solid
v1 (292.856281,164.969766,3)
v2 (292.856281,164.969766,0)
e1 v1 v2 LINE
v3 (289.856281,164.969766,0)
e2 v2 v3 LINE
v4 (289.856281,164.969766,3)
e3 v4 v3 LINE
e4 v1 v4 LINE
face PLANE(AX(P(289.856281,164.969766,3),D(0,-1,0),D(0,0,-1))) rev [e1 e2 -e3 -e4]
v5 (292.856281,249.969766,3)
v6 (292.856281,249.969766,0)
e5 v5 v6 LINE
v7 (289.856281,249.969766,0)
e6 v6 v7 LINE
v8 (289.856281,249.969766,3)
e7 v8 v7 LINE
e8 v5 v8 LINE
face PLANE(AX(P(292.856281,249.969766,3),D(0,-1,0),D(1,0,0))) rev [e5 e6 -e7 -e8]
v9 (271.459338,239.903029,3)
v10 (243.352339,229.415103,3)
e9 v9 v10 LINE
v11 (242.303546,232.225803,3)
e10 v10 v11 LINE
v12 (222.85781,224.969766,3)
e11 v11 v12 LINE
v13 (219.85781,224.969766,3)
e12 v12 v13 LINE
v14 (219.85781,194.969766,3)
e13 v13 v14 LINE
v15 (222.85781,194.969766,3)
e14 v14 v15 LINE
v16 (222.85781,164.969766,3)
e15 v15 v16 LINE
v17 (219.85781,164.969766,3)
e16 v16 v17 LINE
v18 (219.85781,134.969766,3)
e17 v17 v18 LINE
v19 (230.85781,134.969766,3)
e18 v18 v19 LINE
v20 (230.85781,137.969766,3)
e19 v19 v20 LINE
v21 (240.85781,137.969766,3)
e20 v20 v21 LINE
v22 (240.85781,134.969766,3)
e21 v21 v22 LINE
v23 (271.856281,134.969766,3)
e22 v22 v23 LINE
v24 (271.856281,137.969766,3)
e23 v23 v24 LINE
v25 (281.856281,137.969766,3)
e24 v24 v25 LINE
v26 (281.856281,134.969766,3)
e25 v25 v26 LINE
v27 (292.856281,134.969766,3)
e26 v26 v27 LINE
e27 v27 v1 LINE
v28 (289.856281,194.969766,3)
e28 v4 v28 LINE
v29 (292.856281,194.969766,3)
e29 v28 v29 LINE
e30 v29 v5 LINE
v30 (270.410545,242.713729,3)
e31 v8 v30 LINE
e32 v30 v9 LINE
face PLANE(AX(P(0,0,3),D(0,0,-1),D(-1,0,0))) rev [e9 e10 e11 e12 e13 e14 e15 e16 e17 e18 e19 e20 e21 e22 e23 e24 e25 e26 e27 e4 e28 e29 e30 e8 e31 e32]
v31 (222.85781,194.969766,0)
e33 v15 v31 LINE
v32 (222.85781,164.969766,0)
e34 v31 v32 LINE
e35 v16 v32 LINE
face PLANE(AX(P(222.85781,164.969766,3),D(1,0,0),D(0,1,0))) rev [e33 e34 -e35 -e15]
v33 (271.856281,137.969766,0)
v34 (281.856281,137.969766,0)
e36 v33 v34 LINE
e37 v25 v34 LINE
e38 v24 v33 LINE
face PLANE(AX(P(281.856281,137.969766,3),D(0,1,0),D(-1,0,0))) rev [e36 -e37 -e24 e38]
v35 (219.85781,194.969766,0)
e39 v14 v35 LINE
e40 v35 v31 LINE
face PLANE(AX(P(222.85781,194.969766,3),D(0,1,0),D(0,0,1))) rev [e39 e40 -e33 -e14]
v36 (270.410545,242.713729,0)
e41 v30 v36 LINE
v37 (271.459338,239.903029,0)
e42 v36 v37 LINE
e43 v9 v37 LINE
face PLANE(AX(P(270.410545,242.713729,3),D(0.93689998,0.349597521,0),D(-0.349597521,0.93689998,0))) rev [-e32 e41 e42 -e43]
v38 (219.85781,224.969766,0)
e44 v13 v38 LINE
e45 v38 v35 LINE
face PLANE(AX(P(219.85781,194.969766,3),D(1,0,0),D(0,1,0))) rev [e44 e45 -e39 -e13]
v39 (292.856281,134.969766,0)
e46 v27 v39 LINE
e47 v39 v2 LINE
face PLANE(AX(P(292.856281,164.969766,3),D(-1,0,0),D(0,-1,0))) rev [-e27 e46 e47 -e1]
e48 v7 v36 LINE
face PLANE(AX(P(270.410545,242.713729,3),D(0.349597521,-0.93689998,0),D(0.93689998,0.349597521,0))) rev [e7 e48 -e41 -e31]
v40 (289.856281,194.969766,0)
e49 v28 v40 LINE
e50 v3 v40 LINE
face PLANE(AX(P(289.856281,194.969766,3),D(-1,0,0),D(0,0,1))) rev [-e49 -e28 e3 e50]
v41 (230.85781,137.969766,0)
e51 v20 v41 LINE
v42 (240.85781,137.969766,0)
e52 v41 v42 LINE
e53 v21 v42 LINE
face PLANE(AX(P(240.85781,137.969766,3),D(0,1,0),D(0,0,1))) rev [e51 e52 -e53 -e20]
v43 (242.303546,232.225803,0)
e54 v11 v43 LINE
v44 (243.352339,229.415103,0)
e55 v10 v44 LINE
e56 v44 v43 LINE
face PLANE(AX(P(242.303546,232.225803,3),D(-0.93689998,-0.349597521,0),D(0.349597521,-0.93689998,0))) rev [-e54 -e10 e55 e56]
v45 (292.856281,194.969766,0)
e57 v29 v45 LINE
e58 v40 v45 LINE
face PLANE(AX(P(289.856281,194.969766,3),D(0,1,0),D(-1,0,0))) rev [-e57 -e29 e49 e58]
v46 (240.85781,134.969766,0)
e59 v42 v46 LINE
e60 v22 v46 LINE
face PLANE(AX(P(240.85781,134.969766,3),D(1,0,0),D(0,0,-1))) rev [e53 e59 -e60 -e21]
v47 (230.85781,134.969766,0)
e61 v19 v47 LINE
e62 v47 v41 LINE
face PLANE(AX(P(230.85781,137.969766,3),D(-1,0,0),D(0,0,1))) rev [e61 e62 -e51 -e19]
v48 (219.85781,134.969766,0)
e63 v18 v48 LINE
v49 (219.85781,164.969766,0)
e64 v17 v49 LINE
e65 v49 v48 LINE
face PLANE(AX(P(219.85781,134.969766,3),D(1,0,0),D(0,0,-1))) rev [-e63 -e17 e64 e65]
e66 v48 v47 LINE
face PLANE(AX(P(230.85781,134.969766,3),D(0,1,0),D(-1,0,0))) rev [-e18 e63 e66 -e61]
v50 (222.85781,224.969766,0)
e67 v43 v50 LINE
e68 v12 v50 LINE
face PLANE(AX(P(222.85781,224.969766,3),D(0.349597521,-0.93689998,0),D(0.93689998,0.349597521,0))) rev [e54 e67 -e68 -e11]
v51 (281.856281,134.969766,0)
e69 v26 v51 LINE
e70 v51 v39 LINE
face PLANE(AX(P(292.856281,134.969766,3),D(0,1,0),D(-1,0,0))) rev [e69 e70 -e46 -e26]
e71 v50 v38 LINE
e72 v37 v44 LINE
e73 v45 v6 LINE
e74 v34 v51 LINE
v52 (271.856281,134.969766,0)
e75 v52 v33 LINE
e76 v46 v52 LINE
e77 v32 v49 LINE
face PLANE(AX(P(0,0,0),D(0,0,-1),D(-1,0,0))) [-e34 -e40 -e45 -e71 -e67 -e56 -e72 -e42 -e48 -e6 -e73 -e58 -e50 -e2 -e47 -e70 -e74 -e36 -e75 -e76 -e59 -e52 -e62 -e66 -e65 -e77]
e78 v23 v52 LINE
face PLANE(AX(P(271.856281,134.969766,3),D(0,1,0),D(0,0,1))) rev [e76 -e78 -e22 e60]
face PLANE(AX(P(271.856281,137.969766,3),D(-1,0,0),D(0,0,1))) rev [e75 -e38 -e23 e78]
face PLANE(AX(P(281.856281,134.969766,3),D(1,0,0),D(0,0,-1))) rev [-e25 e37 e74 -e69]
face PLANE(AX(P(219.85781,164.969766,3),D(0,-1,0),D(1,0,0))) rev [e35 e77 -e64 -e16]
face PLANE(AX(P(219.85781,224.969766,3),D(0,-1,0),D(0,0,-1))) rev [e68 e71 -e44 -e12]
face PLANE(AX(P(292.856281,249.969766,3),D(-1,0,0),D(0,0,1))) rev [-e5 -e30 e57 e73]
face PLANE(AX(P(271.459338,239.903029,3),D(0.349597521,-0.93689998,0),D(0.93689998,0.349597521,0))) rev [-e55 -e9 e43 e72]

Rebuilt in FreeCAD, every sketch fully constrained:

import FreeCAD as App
import Part
import Sketcher
from FreeCAD import Vector

doc = App.newDocument("Part")
body = doc.addObject("PartDesign::Body", "Body")

sketch1 = body.newObject("Sketcher::SketchObject", "Sketch")
sketch1.AttachmentSupport = (doc.getObject("XY_Plane"), [""])
sketch1.MapMode = "FlatFace"
sketch1.addGeometry(Part.LineSegment(Vector(292.9, 195, 0), Vector(292.9, 250, 0)), False)
sketch1.addGeometry(Part.LineSegment(Vector(292.9, 250, 0), Vector(289.9, 250, 0)), False)
sketch1.addGeometry(Part.LineSegment(Vector(289.9, 250, 0), Vector(270.4, 242.7, 0)), False)
sketch1.addGeometry(Part.LineSegment(Vector(270.4, 242.7, 0), Vector(271.5, 239.9, 0)), False)
sketch1.addGeometry(Part.LineSegment(Vector(271.5, 239.9, 0), Vector(243.4, 229.4, 0)), False)
sketch1.addGeometry(Part.LineSegment(Vector(243.4, 229.4, 0), Vector(242.3, 232.2, 0)), False)
sketch1.addGeometry(Part.LineSegment(Vector(242.3, 232.2, 0), Vector(222.9, 225, 0)), False)
sketch1.addGeometry(Part.LineSegment(Vector(222.9, 225, 0), Vector(219.9, 225, 0)), False)
sketch1.addGeometry(Part.LineSegment(Vector(219.9, 225, 0), Vector(219.9, 195, 0)), False)
sketch1.addGeometry(Part.LineSegment(Vector(219.9, 195, 0), Vector(222.9, 195, 0)), False)
sketch1.addGeometry(Part.LineSegment(Vector(222.9, 195, 0), Vector(222.9, 165, 0)), False)
sketch1.addGeometry(Part.LineSegment(Vector(222.9, 165, 0), Vector(219.9, 165, 0)), False)
sketch1.addGeometry(Part.LineSegment(Vector(219.9, 165, 0), Vector(219.9, 135, 0)), False)
sketch1.addGeometry(Part.LineSegment(Vector(219.9, 135, 0), Vector(230.9, 135, 0)), False)
sketch1.addGeometry(Part.LineSegment(Vector(230.9, 135, 0), Vector(230.9, 138, 0)), False)
sketch1.addGeometry(Part.LineSegment(Vector(230.9, 138, 0), Vector(240.9, 138, 0)), False)
sketch1.addGeometry(Part.LineSegment(Vector(240.9, 138, 0), Vector(240.9, 135, 0)), False)
sketch1.addGeometry(Part.LineSegment(Vector(240.9, 135, 0), Vector(271.9, 135, 0)), False)
sketch1.addGeometry(Part.LineSegment(Vector(271.9, 135, 0), Vector(271.9, 138, 0)), False)
sketch1.addGeometry(Part.LineSegment(Vector(271.9, 138, 0), Vector(281.9, 138, 0)), False)
sketch1.addGeometry(Part.LineSegment(Vector(281.9, 138, 0), Vector(281.9, 135, 0)), False)
sketch1.addGeometry(Part.LineSegment(Vector(281.9, 135, 0), Vector(292.9, 135, 0)), False)
sketch1.addGeometry(Part.LineSegment(Vector(292.9, 135, 0), Vector(292.9, 165, 0)), False)
sketch1.addGeometry(Part.LineSegment(Vector(292.9, 165, 0), Vector(289.9, 165, 0)), False)
sketch1.addGeometry(Part.LineSegment(Vector(289.9, 165, 0), Vector(289.9, 195, 0)), False)
sketch1.addGeometry(Part.LineSegment(Vector(289.9, 195, 0), Vector(292.9, 195, 0)), False)
sketch1.addConstraint(Sketcher.Constraint("Coincident", 0, 2, 1, 1))
sketch1.addConstraint(Sketcher.Constraint("Coincident", 1, 2, 2, 1))
sketch1.addConstraint(Sketcher.Constraint("Coincident", 2, 2, 3, 1))
sketch1.addConstraint(Sketcher.Constraint("Coincident", 3, 2, 4, 1))
sketch1.addConstraint(Sketcher.Constraint("Coincident", 4, 2, 5, 1))
sketch1.addConstraint(Sketcher.Constraint("Coincident", 5, 2, 6, 1))
sketch1.addConstraint(Sketcher.Constraint("Coincident", 6, 2, 7, 1))
sketch1.addConstraint(Sketcher.Constraint("Coincident", 7, 2, 8, 1))
sketch1.addConstraint(Sketcher.Constraint("Coincident", 8, 2, 9, 1))
sketch1.addConstraint(Sketcher.Constraint("Coincident", 9, 2, 10, 1))
sketch1.addConstraint(Sketcher.Constraint("Coincident", 10, 2, 11, 1))
sketch1.addConstraint(Sketcher.Constraint("Coincident", 11, 2, 12, 1))
sketch1.addConstraint(Sketcher.Constraint("Coincident", 12, 2, 13, 1))
sketch1.addConstraint(Sketcher.Constraint("Coincident", 13, 2, 14, 1))
sketch1.addConstraint(Sketcher.Constraint("Coincident", 14, 2, 15, 1))
sketch1.addConstraint(Sketcher.Constraint("Coincident", 15, 2, 16, 1))
sketch1.addConstraint(Sketcher.Constraint("Coincident", 16, 2, 17, 1))
sketch1.addConstraint(Sketcher.Constraint("Coincident", 17, 2, 18, 1))
sketch1.addConstraint(Sketcher.Constraint("Coincident", 18, 2, 19, 1))
sketch1.addConstraint(Sketcher.Constraint("Coincident", 19, 2, 20, 1))
sketch1.addConstraint(Sketcher.Constraint("Coincident", 20, 2, 21, 1))
sketch1.addConstraint(Sketcher.Constraint("Coincident", 21, 2, 22, 1))
sketch1.addConstraint(Sketcher.Constraint("Coincident", 22, 2, 23, 1))
sketch1.addConstraint(Sketcher.Constraint("Coincident", 23, 2, 24, 1))
sketch1.addConstraint(Sketcher.Constraint("Coincident", 24, 2, 25, 1))
sketch1.addConstraint(Sketcher.Constraint("Coincident", 25, 2, 0, 1))
sketch1.addConstraint(Sketcher.Constraint("Vertical", 0))
sketch1.addConstraint(Sketcher.Constraint("Horizontal", 1))
sketch1.addConstraint(Sketcher.Constraint("Horizontal", 7))
sketch1.addConstraint(Sketcher.Constraint("Vertical", 8))
sketch1.addConstraint(Sketcher.Constraint("Horizontal", 9))
sketch1.addConstraint(Sketcher.Constraint("Vertical", 10))
sketch1.addConstraint(Sketcher.Constraint("Horizontal", 11))
sketch1.addConstraint(Sketcher.Constraint("Vertical", 12))
sketch1.addConstraint(Sketcher.Constraint("Horizontal", 13))
sketch1.addConstraint(Sketcher.Constraint("Vertical", 14))
sketch1.addConstraint(Sketcher.Constraint("Horizontal", 15))
sketch1.addConstraint(Sketcher.Constraint("Vertical", 16))
sketch1.addConstraint(Sketcher.Constraint("Horizontal", 17))
sketch1.addConstraint(Sketcher.Constraint("Vertical", 18))
sketch1.addConstraint(Sketcher.Constraint("Horizontal", 19))
sketch1.addConstraint(Sketcher.Constraint("Vertical", 20))
sketch1.addConstraint(Sketcher.Constraint("Horizontal", 21))
sketch1.addConstraint(Sketcher.Constraint("Vertical", 22))
sketch1.addConstraint(Sketcher.Constraint("Horizontal", 23))
sketch1.addConstraint(Sketcher.Constraint("Vertical", 24))
sketch1.addConstraint(Sketcher.Constraint("Horizontal", 25))
sketch1.addConstraint(Sketcher.Constraint("Perpendicular", 2, 3))
sketch1.addConstraint(Sketcher.Constraint("Perpendicular", 3, 4))
sketch1.addConstraint(Sketcher.Constraint("Perpendicular", 4, 5))
sketch1.addConstraint(Sketcher.Constraint("Perpendicular", 5, 6))
sketch1.addConstraint(Sketcher.Constraint("Horizontal", 13, 2, 16, 2))
sketch1.addConstraint(Sketcher.Constraint("Horizontal", 15, 2, 18, 2))
sketch1.addConstraint(Sketcher.Constraint("Horizontal", 17, 2, 20, 2))
sketch1.addConstraint(Sketcher.Constraint("Horizontal", 11, 2, 22, 2))
sketch1.addConstraint(Sketcher.Constraint("Horizontal", 9, 2, 24, 2))
sketch1.addConstraint(Sketcher.Constraint("Vertical", 6, 2, 9, 2))
sketch1.addConstraint(Sketcher.Constraint("Vertical", 8, 2, 11, 2))
sketch1.addConstraint(Sketcher.Constraint("Vertical", 0, 2, 21, 2))
sketch1.addConstraint(Sketcher.Constraint("Vertical", 1, 2, 23, 2))
sketch1.addConstraint(Sketcher.Constraint("Equal", 1, 7))
sketch1.addConstraint(Sketcher.Constraint("Equal", 15, 19))
sketch1.addConstraint(Sketcher.Constraint("Equal", 13, 21))
sketch1.addConstraint(Sketcher.Constraint("Equal", 8, 10))
sketch1.addConstraint(Sketcher.Constraint("Equal", 10, 12))
sketch1.addConstraint(Sketcher.Constraint("Equal", 25, 14))
sketch1.addConstraint(Sketcher.Constraint("Equal", 3, 5))
sketch1.addConstraint(Sketcher.Constraint("Equal", 2, 6))
sketch1.addConstraint(Sketcher.Constraint("DistanceX", 1, 2, 1, 1, 3.0))
sketch1.addConstraint(Sketcher.Constraint("DistanceX", 13, 1, 13, 2, 11.0))
sketch1.addConstraint(Sketcher.Constraint("DistanceX", 15, 1, 15, 2, 10.0))
sketch1.addConstraint(Sketcher.Constraint("DistanceY", 0, 1, 0, 2, 55.0))
sketch1.addConstraint(Sketcher.Constraint("DistanceY", 8, 2, 8, 1, 30.0))
sketch1.addConstraint(Sketcher.Constraint("Distance", 3, 3.0))
sketch1.addConstraint(Sketcher.Constraint("Distance", 4, 30.0))
sketch1.addConstraint(Sketcher.Constraint("DistanceX", 4, 2, 3, 2, 28.106999))
sketch1.addConstraint(Sketcher.Constraint("DistanceX", -1, 1, 0, 2, 292.856281))
sketch1.addConstraint(Sketcher.Constraint("DistanceY", -1, 1, 2, 2, 242.713729))
pad1 = body.newObject("PartDesign::Pad", "Pad")
pad1.Profile = sketch1
pad1.Length = 3

doc.recompute()
